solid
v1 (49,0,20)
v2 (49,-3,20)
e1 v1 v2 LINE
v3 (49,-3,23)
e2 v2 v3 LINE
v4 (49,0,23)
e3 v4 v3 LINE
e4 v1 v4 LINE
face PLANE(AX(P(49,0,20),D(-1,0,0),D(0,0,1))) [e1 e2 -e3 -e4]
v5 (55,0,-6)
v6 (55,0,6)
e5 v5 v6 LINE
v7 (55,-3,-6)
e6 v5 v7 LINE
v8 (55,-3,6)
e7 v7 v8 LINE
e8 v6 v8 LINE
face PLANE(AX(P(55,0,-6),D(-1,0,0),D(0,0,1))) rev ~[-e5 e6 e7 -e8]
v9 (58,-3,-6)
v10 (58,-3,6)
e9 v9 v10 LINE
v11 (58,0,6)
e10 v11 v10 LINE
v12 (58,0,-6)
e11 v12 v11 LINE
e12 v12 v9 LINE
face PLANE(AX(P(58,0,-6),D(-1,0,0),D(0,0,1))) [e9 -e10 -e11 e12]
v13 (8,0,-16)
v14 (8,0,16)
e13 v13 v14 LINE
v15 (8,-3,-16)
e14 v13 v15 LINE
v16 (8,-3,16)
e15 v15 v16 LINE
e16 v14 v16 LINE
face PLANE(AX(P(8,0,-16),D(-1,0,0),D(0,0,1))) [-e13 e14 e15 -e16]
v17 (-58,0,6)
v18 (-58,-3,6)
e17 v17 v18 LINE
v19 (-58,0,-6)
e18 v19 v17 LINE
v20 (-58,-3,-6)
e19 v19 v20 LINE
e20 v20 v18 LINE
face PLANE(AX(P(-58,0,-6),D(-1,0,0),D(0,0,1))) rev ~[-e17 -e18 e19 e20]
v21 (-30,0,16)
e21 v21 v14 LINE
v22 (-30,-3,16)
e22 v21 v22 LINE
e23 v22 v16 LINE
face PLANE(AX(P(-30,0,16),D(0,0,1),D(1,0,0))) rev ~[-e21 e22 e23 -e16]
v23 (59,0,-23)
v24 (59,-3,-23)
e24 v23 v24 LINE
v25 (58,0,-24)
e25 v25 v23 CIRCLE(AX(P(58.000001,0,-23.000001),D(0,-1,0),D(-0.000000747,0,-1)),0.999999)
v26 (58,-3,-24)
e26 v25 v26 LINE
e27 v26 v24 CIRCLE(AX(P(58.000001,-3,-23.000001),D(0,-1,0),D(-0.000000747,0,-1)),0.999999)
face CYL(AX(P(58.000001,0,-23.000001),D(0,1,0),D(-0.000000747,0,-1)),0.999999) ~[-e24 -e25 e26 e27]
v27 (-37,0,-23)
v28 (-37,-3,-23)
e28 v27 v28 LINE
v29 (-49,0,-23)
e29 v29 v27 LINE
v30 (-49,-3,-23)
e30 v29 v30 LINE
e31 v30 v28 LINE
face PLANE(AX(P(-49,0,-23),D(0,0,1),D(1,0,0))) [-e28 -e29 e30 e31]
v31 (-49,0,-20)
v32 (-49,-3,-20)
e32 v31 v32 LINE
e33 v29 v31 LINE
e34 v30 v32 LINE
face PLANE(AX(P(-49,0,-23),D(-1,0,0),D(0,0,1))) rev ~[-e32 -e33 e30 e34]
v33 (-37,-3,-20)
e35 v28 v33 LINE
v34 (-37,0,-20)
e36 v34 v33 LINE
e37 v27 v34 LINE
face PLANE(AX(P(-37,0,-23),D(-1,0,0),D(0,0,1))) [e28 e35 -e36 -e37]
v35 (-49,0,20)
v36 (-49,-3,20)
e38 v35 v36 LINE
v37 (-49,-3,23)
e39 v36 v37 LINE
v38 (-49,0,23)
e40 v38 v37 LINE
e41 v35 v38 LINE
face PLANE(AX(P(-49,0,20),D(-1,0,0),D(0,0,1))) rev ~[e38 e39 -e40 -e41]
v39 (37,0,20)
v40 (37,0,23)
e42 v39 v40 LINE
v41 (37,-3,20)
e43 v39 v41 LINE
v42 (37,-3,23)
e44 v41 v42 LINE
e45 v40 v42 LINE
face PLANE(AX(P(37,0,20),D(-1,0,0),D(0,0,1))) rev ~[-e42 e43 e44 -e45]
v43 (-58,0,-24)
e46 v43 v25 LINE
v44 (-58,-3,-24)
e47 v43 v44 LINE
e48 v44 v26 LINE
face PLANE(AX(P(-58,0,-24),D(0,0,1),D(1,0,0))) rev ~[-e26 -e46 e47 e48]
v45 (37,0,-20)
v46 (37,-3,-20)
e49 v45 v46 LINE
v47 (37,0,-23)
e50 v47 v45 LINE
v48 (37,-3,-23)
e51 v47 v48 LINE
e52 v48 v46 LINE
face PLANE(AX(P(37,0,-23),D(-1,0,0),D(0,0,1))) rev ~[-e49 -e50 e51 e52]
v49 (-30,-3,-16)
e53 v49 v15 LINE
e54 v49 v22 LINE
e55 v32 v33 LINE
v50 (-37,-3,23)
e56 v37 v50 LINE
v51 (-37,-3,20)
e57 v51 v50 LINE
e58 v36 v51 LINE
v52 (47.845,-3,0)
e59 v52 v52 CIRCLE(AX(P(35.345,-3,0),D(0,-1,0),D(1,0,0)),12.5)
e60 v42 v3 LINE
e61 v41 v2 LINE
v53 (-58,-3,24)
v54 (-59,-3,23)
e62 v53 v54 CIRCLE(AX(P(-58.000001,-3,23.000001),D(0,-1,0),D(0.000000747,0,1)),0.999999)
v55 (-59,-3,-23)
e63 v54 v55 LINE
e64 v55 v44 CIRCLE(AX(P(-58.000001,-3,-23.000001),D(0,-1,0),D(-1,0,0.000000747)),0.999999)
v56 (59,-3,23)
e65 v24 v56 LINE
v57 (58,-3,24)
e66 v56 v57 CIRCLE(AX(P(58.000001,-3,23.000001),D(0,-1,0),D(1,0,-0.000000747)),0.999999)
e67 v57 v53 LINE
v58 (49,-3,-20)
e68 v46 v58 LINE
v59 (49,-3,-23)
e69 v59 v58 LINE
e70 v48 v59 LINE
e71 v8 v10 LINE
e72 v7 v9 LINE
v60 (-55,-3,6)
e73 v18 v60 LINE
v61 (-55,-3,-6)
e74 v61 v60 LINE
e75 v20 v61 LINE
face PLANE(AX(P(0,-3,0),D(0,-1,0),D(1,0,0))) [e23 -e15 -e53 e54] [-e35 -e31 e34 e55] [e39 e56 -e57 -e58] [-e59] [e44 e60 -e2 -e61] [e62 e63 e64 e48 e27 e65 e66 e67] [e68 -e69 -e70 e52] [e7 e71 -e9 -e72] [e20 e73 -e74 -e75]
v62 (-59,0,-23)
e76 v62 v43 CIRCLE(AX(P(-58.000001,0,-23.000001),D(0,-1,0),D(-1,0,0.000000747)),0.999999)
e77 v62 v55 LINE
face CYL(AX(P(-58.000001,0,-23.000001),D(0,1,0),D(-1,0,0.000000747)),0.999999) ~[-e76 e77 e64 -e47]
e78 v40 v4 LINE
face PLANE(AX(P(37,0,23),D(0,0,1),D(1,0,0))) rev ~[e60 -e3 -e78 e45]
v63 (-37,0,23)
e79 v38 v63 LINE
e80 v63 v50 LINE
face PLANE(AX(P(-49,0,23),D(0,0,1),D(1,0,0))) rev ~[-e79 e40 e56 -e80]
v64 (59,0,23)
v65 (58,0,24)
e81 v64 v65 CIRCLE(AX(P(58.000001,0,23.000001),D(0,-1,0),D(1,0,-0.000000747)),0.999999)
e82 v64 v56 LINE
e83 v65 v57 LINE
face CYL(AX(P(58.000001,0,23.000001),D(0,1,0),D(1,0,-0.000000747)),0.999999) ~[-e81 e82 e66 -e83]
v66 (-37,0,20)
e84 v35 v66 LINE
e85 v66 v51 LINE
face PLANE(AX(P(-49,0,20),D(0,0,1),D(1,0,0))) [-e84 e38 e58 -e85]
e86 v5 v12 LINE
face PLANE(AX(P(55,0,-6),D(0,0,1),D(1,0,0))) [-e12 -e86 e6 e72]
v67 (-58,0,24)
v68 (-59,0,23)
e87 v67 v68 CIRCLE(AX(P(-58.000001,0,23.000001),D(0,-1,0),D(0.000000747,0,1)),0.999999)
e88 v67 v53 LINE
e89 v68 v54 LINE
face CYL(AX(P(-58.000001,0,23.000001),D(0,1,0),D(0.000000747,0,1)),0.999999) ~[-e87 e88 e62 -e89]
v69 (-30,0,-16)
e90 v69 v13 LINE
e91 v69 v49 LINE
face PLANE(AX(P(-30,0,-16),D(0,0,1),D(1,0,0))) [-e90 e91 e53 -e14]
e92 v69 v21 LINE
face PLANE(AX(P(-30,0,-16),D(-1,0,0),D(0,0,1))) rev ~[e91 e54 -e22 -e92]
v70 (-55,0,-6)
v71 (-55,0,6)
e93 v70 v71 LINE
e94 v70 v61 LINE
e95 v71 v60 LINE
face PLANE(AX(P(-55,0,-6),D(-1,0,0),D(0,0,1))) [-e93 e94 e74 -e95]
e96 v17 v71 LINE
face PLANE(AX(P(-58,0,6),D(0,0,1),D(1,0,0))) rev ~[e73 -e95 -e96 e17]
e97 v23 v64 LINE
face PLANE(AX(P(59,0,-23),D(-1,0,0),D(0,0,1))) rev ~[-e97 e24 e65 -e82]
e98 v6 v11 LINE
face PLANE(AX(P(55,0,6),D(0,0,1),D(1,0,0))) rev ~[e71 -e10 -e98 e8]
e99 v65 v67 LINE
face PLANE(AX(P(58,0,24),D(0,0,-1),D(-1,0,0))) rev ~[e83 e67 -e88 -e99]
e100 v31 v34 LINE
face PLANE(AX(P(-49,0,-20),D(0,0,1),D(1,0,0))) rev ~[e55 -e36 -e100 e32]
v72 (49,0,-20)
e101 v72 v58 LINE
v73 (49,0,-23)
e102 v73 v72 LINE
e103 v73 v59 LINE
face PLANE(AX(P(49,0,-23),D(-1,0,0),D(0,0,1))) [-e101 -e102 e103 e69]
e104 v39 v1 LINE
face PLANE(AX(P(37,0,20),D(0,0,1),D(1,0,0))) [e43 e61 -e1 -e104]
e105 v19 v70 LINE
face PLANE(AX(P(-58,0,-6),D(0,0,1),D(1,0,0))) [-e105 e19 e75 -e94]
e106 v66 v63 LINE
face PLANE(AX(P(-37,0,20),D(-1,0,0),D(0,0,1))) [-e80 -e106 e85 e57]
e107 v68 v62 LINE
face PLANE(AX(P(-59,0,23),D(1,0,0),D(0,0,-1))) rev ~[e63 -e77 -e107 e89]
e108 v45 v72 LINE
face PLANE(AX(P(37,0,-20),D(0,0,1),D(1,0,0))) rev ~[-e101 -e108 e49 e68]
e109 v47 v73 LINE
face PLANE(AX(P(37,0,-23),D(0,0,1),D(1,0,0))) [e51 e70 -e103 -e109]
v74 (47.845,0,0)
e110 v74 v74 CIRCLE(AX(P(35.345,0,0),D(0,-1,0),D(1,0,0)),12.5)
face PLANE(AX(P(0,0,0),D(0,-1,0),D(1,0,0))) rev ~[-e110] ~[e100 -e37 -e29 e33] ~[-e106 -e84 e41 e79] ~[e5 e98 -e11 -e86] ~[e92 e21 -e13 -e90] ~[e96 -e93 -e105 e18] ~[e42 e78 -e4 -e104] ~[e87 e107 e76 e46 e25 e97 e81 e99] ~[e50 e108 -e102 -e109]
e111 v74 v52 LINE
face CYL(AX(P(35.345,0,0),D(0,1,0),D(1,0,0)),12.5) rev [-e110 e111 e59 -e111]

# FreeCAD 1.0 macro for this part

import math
import FreeCAD as App
import Part
import Sketcher


def add_polygon(sketch, points):
    """Adds a closed chain of lines whose ends are joined by coincident constraints."""
    first, n = sketch.GeometryCount, len(points)
    for a, b in zip(points, points[1:] + points[:1]):
        sketch.addGeometry(Part.LineSegment(App.Vector(*a, 0), App.Vector(*b, 0)), False)
    for i in range(n):
        sketch.addConstraint(Sketcher.Constraint("Coincident", first + i, 2, first + (i + 1) % n, 1))

doc = App.newDocument("Part")
body = doc.addObject("PartDesign::Body", "Body")

# Sketch on XZ plane
sketch1 = body.newObject("Sketcher::SketchObject", "Sketch")
sketch1.AttachmentSupport = (doc.getObject("XZ_Plane"), [""])
sketch1.MapMode = "FlatFace"
sketch1.addGeometry(Part.ArcOfCircle(Part.Circle(App.Vector(-58, 23, 0), App.Vector(0, 0, 1), 1), math.radians(90), math.radians(180)), False)  # 0
sketch1.addGeometry(Part.LineSegment(App.Vector(-59, 23, 0), App.Vector(-59, -23, 0)), False)  # 1
sketch1.addGeometry(Part.ArcOfCircle(Part.Circle(App.Vector(-58, -23, 0), App.Vector(0, 0, 1), 1), math.radians(180), math.radians(270)), False)  # 2
sketch1.addGeometry(Part.LineSegment(App.Vector(-58, -24, 0), App.Vector(58, -24, 0)), False)  # 3
sketch1.addGeometry(Part.ArcOfCircle(Part.Circle(App.Vector(58, -23, 0), App.Vector(0, 0, 1), 1), math.radians(-90), math.radians(0)), False)  # 4
sketch1.addGeometry(Part.LineSegment(App.Vector(59, -23, 0), App.Vector(59, 23, 0)), False)  # 5
sketch1.addGeometry(Part.ArcOfCircle(Part.Circle(App.Vector(58, 23, 0), App.Vector(0, 0, 1), 1), math.radians(0), math.radians(90)), False)  # 6
sketch1.addGeometry(Part.LineSegment(App.Vector(58, 24, 0), App.Vector(-58, 24, 0)), False)  # 7
add_polygon(sketch1, [(-37, -23), (-49, -23), (-49, -20), (-37, -20)])  # lines 8-11
add_polygon(sketch1, [(49, -23), (37, -23), (37, -20), (49, -20)])  # lines 12-15
add_polygon(sketch1, [(-55, -6), (-58, -6), (-58, 6), (-55, 6)])  # lines 16-19
add_polygon(sketch1, [(8, -16), (-30, -16), (-30, 16), (8, 16)])  # lines 20-23
add_polygon(sketch1, [(-37, 20), (-49, 20), (-49, 23), (-37, 23)])  # lines 24-27
sketch1.addGeometry(Part.Circle(App.Vector(35.3, 0, 0), App.Vector(0, 0, 1), 12.5), False)  # 28
add_polygon(sketch1, [(58, -6), (55, -6), (55, 6), (58, 6)])  # lines 29-32
add_polygon(sketch1, [(49, 20), (37, 20), (37, 23), (49, 23)])  # lines 33-36
sketch1.addConstraint([
    Sketcher.Constraint("Tangent", 0, 2, 1, 1),
    Sketcher.Constraint("Tangent", 1, 2, 2, 1),
    Sketcher.Constraint("Tangent", 2, 2, 3, 1),
    Sketcher.Constraint("Tangent", 3, 2, 4, 1),
    Sketcher.Constraint("Tangent", 4, 2, 5, 1),
    Sketcher.Constraint("Tangent", 5, 2, 6, 1),
    Sketcher.Constraint("Tangent", 6, 2, 7, 1),
    Sketcher.Constraint("Tangent", 7, 2, 0, 1),
    Sketcher.Constraint("Vertical", 1),
    Sketcher.Constraint("Horizontal", 3),
    Sketcher.Constraint("Vertical", 5),
    Sketcher.Constraint("Horizontal", 7),
    Sketcher.Constraint("Horizontal", 8),
    Sketcher.Constraint("Vertical", 9),
    Sketcher.Constraint("Horizontal", 10),
    Sketcher.Constraint("Vertical", 11),
    Sketcher.Constraint("Horizontal", 12),
    Sketcher.Constraint("Vertical", 13),
    Sketcher.Constraint("Horizontal", 14),
    Sketcher.Constraint("Vertical", 15),
    Sketcher.Constraint("Horizontal", 16),
    Sketcher.Constraint("Vertical", 17),
    Sketcher.Constraint("Horizontal", 18),
    Sketcher.Constraint("Vertical", 19),
    Sketcher.Constraint("Horizontal", 20),
    Sketcher.Constraint("Vertical", 21),
    Sketcher.Constraint("Horizontal", 22),
    Sketcher.Constraint("Vertical", 23),
    Sketcher.Constraint("Horizontal", 24),
    Sketcher.Constraint("Vertical", 25),
    Sketcher.Constraint("Horizontal", 26),
    Sketcher.Constraint("Vertical", 27),
    Sketcher.Constraint("Horizontal", 29),
    Sketcher.Constraint("Vertical", 30),
    Sketcher.Constraint("Horizontal", 31),
    Sketcher.Constraint("Vertical", 32),
    Sketcher.Constraint("Horizontal", 33),
    Sketcher.Constraint("Vertical", 34),
    Sketcher.Constraint("Horizontal", 35),
    Sketcher.Constraint("Vertical", 36),
    Sketcher.Constraint("Equal", 0, 2),
    Sketcher.Constraint("Equal", 2, 4),
    Sketcher.Constraint("Equal", 4, 6),
    Sketcher.Constraint("Symmetric", 0, 3, 4, 3, -1, 1),
    Sketcher.Constraint("Symmetric", 14, 2, 24, 2, -1, 1),
    Sketcher.Constraint("Symmetric", 12, 2, 26, 2, -1, 1),
    Sketcher.Constraint("Symmetric", 18, 2, 29, 2, -1, 1),
    Sketcher.Constraint("Symmetric", 16, 2, 31, 2, -1, 1),
    Sketcher.Constraint("Symmetric", 10, 2, 33, 2, -1, 1),
    Sketcher.Constraint("Symmetric", 8, 2, 35, 2, -1, 1),
    Sketcher.Constraint("Symmetric", 11, 2, 12, 2, -2),
    Sketcher.Constraint("Symmetric", 9, 2, 14, 2, -2),
    Sketcher.Constraint("PointOnObject", 28, 3, -1),
    Sketcher.Constraint("Horizontal", 4, 2, 8, 2),
    Sketcher.Constraint("Horizontal", 19, 2, 29, 2),
    Sketcher.Constraint("Vertical", 7, 2, 16, 2),
    Sketcher.Constraint("Equal", 31, 9),
    Sketcher.Constraint("Equal", 35, 17),
    Sketcher.Constraint("Diameter", 28, 25.0),
    Sketcher.Constraint("Radius", 0, 0.999999),
    Sketcher.Constraint("DistanceX", 3, 1, 3, 2, 116.0),
    Sketcher.Constraint("DistanceX", 8, 2, 8, 1, 12.0),
    Sketcher.Constraint("DistanceX", 16, 2, 16, 1, 3.0),
    Sketcher.Constraint("DistanceX", 20, 2, 20, 1, 38.0),
    Sketcher.Constraint("DistanceY", 1, 2, 1, 1, 46.0),
    Sketcher.Constraint("DistanceY", 21, 1, 21, 2, 32.0),
    Sketcher.Constraint("DistanceX", 8, 2, -1, 1, 49.0),
    Sketcher.Constraint("DistanceX", 20, 2, -1, 1, 30.0),
    Sketcher.Constraint("DistanceY", 20, 2, -1, 1, 16.0),
    Sketcher.Constraint("DistanceX", -1, 1, 28, 3, 35.345),
])
pad1 = body.newObject("PartDesign::Pad", "Pad")
pad1.Profile = sketch1
pad1.Length = 3

doc.recompute()
